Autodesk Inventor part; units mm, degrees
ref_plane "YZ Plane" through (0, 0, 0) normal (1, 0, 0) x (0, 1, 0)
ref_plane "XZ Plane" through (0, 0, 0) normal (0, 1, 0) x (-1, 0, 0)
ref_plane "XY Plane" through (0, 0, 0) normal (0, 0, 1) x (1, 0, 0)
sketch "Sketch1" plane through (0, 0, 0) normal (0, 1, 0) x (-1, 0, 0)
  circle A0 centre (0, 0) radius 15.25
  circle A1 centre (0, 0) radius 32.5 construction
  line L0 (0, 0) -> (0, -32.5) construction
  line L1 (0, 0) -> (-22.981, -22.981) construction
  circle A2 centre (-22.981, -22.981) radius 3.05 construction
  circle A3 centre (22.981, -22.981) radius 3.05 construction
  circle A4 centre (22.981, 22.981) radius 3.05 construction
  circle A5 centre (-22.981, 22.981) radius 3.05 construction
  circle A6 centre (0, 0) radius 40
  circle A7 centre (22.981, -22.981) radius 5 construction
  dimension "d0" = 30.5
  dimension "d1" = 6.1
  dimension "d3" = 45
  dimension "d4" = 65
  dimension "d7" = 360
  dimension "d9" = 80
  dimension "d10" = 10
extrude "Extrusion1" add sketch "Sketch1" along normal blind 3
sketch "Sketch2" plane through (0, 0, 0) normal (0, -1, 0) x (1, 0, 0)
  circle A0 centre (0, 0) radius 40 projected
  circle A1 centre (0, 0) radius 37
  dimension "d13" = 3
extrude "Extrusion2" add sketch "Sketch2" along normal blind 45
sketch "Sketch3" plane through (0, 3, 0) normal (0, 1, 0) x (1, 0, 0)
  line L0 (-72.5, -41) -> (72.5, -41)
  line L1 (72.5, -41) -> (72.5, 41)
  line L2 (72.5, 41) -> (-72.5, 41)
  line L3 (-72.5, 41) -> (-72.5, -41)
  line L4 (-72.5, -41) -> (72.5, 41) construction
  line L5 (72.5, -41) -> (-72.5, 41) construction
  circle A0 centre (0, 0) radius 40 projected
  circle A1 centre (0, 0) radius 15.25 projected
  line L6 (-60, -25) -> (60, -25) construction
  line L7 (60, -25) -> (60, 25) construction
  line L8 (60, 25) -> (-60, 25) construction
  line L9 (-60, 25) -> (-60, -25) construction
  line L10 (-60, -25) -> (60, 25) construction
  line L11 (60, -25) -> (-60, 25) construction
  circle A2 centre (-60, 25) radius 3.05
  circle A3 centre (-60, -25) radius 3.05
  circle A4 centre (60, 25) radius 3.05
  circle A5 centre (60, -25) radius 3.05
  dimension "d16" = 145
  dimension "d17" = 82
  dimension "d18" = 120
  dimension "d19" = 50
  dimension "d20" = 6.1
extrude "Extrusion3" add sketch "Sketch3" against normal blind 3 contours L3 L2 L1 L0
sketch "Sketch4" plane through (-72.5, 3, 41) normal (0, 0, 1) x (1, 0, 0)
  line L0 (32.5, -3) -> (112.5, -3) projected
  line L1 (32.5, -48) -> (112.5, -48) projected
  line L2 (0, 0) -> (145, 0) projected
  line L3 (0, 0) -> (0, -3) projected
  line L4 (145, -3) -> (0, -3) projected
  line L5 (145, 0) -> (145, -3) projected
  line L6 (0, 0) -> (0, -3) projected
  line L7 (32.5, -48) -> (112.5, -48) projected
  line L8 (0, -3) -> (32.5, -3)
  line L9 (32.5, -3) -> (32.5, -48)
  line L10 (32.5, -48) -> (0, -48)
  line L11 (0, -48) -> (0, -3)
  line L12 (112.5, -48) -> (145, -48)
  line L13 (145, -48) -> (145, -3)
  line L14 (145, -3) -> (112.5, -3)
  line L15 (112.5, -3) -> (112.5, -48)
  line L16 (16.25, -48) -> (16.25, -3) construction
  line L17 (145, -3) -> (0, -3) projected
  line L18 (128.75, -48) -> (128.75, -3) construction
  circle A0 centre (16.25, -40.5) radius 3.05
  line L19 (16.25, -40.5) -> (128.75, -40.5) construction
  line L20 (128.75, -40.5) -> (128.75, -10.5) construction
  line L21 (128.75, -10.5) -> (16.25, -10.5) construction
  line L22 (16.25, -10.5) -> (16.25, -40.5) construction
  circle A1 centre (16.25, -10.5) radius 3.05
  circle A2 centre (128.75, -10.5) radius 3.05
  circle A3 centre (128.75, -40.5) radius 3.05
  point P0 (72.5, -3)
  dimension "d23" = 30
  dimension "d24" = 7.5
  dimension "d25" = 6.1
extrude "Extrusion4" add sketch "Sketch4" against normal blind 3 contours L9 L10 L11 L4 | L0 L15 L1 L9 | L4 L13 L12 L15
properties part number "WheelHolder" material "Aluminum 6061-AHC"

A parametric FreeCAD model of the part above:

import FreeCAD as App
import Part
import Sketcher
from FreeCAD import Vector


def add_polygon(sketch, points):
    """Adds a closed chain of lines whose ends are joined by coincident constraints."""
    first, n = sketch.GeometryCount, len(points)
    for a, b in zip(points, points[1:] + points[:1]):
        sketch.addGeometry(Part.LineSegment(App.Vector(*a, 0), App.Vector(*b, 0)), False)
    for i in range(n):
        sketch.addConstraint(Sketcher.Constraint("Coincident", first + i, 2, first + (i + 1) % n, 1))

doc = App.newDocument("Part")
body = doc.addObject("PartDesign::Body", "Body")

# Sketch on XZ plane
sketch1 = body.newObject("Sketcher::SketchObject", "Sketch")
sketch1.AttachmentSupport = (doc.getObject("XZ_Plane"), [""])
sketch1.MapMode = "FlatFace"
sketch1.addGeometry([
    Part.Circle(Vector(0, 0, 0), Vector(0, 0, 1), 40),
    Part.Circle(Vector(0, 0, 0), Vector(0, 0, 1), 15),
], False)
sketch1.addConstraint([
    Sketcher.Constraint("Coincident", 0, 3, -1, 1),
    Sketcher.Constraint("Coincident", 1, 3, -1, 1),
    Sketcher.Constraint("Diameter", 0, 80.0),
    Sketcher.Constraint("Diameter", 1, 30.5),
])
pad1 = body.newObject("PartDesign::Pad", "Pad")
pad1.Profile = sketch1
pad1.Length = 3
pad1.Reversed = True

# Sketch on XZ plane
sketch2 = body.newObject("Sketcher::SketchObject", "Sketch001")
sketch2.AttachmentSupport = (doc.getObject("XZ_Plane"), [""])
sketch2.MapMode = "FlatFace"
sketch2.addGeometry([
    Part.Circle(Vector(0, 0, 0), Vector(0, 0, 1), 40),
    Part.Circle(Vector(0, 0, 0), Vector(0, 0, 1), 37),
], False)
sketch2.addConstraint([
    Sketcher.Constraint("Coincident", 0, 3, -1, 1),
    Sketcher.Constraint("Coincident", 1, 3, -1, 1),
    Sketcher.Constraint("Diameter", 0, 80.0),
    Sketcher.Constraint("Diameter", 1, 74.0),
])
pad2 = body.newObject("PartDesign::Pad", "Pad001")
pad2.Profile = sketch2
pad2.Length = 45

# Sketch on XZ plane
sketch3 = body.newObject("Sketcher::SketchObject", "Sketch002")
sketch3.AttachmentSupport = (doc.getObject("XZ_Plane"), [""])
sketch3.MapMode = "FlatFace"
sketch3.AttachmentOffset = App.Placement(Vector(0, 0, -3), App.Rotation())
add_polygon(sketch3, [(-72.5, -41), (-72.5, 41), (72.5, 41), (72.5, -41)])  # lines 0-3
sketch3.addGeometry(Part.Circle(Vector(-60, 25, 0), Vector(0, 0, 1), 3), False)  # 4
sketch3.addGeometry(Part.Circle(Vector(60, 25, 0), Vector(0, 0, 1), 3), False)  # 5
sketch3.addGeometry(Part.Circle(Vector(-60, -25, 0), Vector(0, 0, 1), 3), False)  # 6
sketch3.addGeometry(Part.Circle(Vector(0, 0, 0), Vector(0, 0, 1), 40), False)  # 7
sketch3.addGeometry(Part.Circle(Vector(60, -25, 0), Vector(0, 0, 1), 3), False)  # 8
sketch3.addConstraint([
    Sketcher.Constraint("Vertical", 0),
    Sketcher.Constraint("Horizontal", 1),
    Sketcher.Constraint("Vertical", 2),
    Sketcher.Constraint("Horizontal", 3),
    Sketcher.Constraint("Coincident", 7, 3, -1, 1),
    Sketcher.Constraint("Equal", 4, 5),
    Sketcher.Constraint("Equal", 5, 6),
    Sketcher.Constraint("Equal", 6, 8),
    Sketcher.Constraint("Symmetric", 5, 3, 6, 3, -1, 1),
    Sketcher.Constraint("Symmetric", 4, 3, 8, 3, -1, 1),
    Sketcher.Constraint("Symmetric", 0, 2, 2, 2, -1, 1),
    Sketcher.Constraint("Symmetric", 4, 3, 5, 3, -2),
    Sketcher.Constraint("Diameter", 4, 6.1),
    Sketcher.Constraint("DistanceX", 1, 1, 1, 2, 145.0),
    Sketcher.Constraint("DistanceY", 0, 1, 0, 2, 82.0),
    Sketcher.Constraint("Diameter", 7, 80.0),
    Sketcher.Constraint("DistanceX", 4, 3, 5, 3, 120.0),
    Sketcher.Constraint("DistanceY", 6, 3, 4, 3, 50.0),
])
pad3 = body.newObject("PartDesign::Pad", "Pad002")
pad3.Profile = sketch3
pad3.Length = 3

# Sketch on XY plane
sketch4 = body.newObject("Sketcher::SketchObject", "Sketch003")
sketch4.AttachmentSupport = (doc.getObject("XY_Plane"), [""])
sketch4.MapMode = "FlatFace"
sketch4.AttachmentOffset = App.Placement(Vector(0, 0, 41), App.Rotation())
add_polygon(sketch4, [(-72.5, -45), (72.5, -45), (72.5, 0), (-72.5, 0)])  # lines 0-3
sketch4.addGeometry(Part.Circle(Vector(-56.2, -37.5, 0), Vector(0, 0, 1), 3), False)  # 4
sketch4.addGeometry(Part.Circle(Vector(-56.2, -7.5, 0), Vector(0, 0, 1), 3), False)  # 5
sketch4.addGeometry(Part.Circle(Vector(56.2, -7.5, 0), Vector(0, 0, 1), 3), False)  # 6
sketch4.addGeometry(Part.Circle(Vector(56.2, -37.5, 0), Vector(0, 0, 1), 3), False)  # 7
sketch4.addConstraint([
    Sketcher.Constraint("Horizontal", 0),
    Sketcher.Constraint("Vertical", 1),
    Sketcher.Constraint("Horizontal", 2),
    Sketcher.Constraint("Vertical", 3),
    Sketcher.Constraint("Equal", 4, 5),
    Sketcher.Constraint("Equal", 5, 6),
    Sketcher.Constraint("Equal", 6, 7),
    Sketcher.Constraint("Symmetric", 1, 2, 2, 2, -1, 1),
    Sketcher.Constraint("Symmetric", 5, 3, 6, 3, -2),
    Sketcher.Constraint("Symmetric", 4, 3, 7, 3, -2),
    Sketcher.Constraint("Vertical", 4, 3, 5, 3),
    Sketcher.Constraint("Diameter", 4, 6.1),
    Sketcher.Constraint("DistanceY", 4, 3, 5, 3, 30.0),
    Sketcher.Constraint("DistanceY", 5, 3, -1, 1, 7.5),
    Sketcher.Constraint("DistanceY", 0, 2, 7, 3, 7.5),
    Sketcher.Constraint("DistanceX", 0, 1, 0, 2, 145.0),
    Sketcher.Constraint("DistanceX", 5, 3, 6, 3, 112.5),
])
pad4 = body.newObject("PartDesign::Pad", "Pad003")
pad4.Profile = sketch4
pad4.Length = 3
pad4.Reversed = True

doc.recompute()
